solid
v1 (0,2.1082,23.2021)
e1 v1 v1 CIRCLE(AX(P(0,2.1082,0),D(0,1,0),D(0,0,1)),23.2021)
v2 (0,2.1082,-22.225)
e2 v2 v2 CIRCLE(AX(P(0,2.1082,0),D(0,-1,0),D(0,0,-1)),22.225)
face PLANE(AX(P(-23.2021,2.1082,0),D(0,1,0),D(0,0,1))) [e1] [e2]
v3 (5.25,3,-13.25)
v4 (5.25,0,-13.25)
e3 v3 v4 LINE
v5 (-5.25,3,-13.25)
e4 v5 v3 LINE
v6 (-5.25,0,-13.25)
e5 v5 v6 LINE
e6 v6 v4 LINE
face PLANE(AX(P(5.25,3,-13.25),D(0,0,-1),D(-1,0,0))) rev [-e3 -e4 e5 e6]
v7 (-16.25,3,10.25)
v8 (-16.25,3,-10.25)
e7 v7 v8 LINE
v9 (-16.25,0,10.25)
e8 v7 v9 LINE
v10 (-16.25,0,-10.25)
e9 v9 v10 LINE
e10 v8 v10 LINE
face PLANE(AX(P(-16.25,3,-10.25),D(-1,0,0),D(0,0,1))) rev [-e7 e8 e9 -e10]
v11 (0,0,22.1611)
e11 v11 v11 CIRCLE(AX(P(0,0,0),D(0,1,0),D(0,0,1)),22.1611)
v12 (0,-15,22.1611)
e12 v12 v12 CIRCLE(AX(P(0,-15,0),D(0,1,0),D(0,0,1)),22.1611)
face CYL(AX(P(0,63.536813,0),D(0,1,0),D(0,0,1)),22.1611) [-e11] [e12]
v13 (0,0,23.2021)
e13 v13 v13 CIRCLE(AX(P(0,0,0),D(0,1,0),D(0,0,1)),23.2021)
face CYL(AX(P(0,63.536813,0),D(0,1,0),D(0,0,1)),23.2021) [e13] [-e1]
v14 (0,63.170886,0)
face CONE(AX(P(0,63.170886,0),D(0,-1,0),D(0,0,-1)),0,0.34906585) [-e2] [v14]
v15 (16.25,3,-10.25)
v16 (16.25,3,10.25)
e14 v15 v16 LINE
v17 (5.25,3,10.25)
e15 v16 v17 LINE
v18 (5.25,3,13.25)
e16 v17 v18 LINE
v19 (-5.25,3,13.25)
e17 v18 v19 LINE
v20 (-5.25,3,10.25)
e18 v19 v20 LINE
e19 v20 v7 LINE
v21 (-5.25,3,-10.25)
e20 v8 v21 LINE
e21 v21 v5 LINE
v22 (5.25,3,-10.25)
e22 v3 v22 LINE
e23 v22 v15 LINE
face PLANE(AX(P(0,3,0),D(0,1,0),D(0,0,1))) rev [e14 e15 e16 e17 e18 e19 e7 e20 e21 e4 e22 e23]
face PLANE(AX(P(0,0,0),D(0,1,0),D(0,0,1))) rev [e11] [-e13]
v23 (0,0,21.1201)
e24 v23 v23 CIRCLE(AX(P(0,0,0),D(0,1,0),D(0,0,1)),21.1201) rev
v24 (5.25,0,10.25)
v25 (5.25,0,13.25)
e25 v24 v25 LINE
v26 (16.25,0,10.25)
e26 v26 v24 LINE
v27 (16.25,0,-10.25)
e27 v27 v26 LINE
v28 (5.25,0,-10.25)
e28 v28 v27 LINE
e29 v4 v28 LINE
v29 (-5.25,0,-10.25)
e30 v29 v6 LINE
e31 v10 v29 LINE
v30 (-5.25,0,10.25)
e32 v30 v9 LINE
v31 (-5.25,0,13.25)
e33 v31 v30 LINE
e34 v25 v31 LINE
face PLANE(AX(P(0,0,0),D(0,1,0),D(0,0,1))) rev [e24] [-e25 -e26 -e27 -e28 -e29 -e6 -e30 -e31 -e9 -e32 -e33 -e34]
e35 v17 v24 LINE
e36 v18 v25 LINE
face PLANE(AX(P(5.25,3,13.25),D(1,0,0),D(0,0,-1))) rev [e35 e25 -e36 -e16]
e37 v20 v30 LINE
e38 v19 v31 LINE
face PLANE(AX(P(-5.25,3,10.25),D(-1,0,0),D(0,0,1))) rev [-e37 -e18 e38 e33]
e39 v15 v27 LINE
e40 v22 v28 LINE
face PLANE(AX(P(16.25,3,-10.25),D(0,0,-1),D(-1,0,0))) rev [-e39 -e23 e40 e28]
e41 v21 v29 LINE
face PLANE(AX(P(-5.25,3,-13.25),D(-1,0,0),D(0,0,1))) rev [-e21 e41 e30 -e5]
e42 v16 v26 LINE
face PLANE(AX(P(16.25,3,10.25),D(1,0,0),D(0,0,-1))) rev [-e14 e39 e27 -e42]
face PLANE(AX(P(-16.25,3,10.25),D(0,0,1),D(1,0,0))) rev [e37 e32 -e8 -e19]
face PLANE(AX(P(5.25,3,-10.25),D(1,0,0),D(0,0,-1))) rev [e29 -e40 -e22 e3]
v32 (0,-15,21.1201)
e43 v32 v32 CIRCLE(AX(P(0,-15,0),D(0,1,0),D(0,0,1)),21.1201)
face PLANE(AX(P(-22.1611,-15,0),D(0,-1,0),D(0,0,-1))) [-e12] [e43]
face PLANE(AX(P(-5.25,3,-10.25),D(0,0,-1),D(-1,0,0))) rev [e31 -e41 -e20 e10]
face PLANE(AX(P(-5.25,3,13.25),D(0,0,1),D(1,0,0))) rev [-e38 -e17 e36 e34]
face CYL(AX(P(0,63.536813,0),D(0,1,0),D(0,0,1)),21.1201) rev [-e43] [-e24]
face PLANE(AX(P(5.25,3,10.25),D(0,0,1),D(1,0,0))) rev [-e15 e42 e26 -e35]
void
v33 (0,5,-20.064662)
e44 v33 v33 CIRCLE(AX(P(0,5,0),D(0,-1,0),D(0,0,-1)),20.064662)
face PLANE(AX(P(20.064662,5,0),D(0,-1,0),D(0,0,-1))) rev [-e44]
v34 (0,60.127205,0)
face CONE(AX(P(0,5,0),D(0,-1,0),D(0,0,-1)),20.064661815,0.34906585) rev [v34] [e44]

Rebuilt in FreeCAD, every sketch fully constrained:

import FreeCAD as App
import Part
import Sketcher

V = App.Vector
Q = App.Units.Quantity


def add_polygon(sketch, points):
    """Adds a closed chain of lines whose ends are joined by coincident constraints."""
    first, n = sketch.GeometryCount, len(points)
    for a, b in zip(points, points[1:] + points[:1]):
        sketch.addGeometry(Part.LineSegment(App.Vector(*a, 0), App.Vector(*b, 0)), False)
    for i in range(n):
        sketch.addConstraint(Sketcher.Constraint("Coincident", first + i, 2, first + (i + 1) % n, 1))

doc = App.newDocument("Part")
body = doc.addObject("PartDesign::Body", "Body")

sketch1 = body.newObject("Sketcher::SketchObject", "Sketch")
sketch1.AttachmentSupport = (doc.getObject("XY_Plane"), [""])
sketch1.MapMode = "FlatFace"
add_polygon(sketch1, [(-22.2, 0), (0, 0), (0, 5), (-20.1, 5), (0, 60.1), (0, 63.2), (-22.2, 2.1)])
sketch1.addConstraint([
    Sketcher.Constraint("Horizontal", 0),
    Sketcher.Constraint("Vertical", 1),
    Sketcher.Constraint("Horizontal", 2),
    Sketcher.Constraint("Vertical", 4),
    Sketcher.Constraint("Vertical", 6),
    Sketcher.Constraint("Coincident", 0, 2, -1, 1),
    Sketcher.Constraint("PointOnObject", 3, 2, -2),
    Sketcher.Constraint("Parallel", 3, 5),
    Sketcher.Constraint("DistanceY", 1, 1, 1, 2, Q("5 mm")),
    Sketcher.Constraint("Angle", 3, Q("70 deg")),
    Sketcher.Constraint("DistanceX", 0, 1, 0, 2, Q("22.225 mm")),
    Sketcher.Constraint("DistanceY", 6, 2, 6, 1, Q("2.1082 mm")),
    Sketcher.Constraint("DistanceX", 2, 2, 2, 1, Q("20.064662 mm")),
])
revolution = body.newObject("PartDesign::Revolution", "Revolution")
revolution.Profile = sketch1
revolution.ReferenceAxis = (sketch1, ["V_Axis"])
revolution.Angle = 360

sketch2 = body.newObject("Sketcher::SketchObject", "Sketch001")
sketch2.AttachmentSupport = (doc.getObject("XY_Plane"), [""])
sketch2.MapMode = "FlatFace"
add_polygon(sketch2, [(-22.2, 0), (-22.2, -15), (-21.1, -15), (-21.1, 2.1), (-23.2, 2.1), (-23.2, 0)])
sketch2.addConstraint([
    Sketcher.Constraint("Vertical", 0),
    Sketcher.Constraint("Horizontal", 1),
    Sketcher.Constraint("Vertical", 2),
    Sketcher.Constraint("Horizontal", 3),
    Sketcher.Constraint("Vertical", 4),
    Sketcher.Constraint("Horizontal", 5),
    Sketcher.Constraint("PointOnObject", 4, 2, -1),
    Sketcher.Constraint("Equal", 1, 5),
    Sketcher.Constraint("DistanceY", 0, 2, 0, 1, Q("15 mm")),
    Sketcher.Constraint("DistanceX", 1, 1, 1, 2, Q("1.041 mm")),
    Sketcher.Constraint("DistanceY", 2, 1, 2, 2, Q("17.1082 mm")),
    Sketcher.Constraint("DistanceX", 0, 2, -1, 1, Q("22.1611 mm")),
])
revolution2 = body.newObject("PartDesign::Revolution", "Revolution001")
revolution2.Profile = sketch2
revolution2.ReferenceAxis = (sketch2, ["V_Axis"])
revolution2.Angle = 360

sketch3 = body.newObject("Sketcher::SketchObject", "Sketch002")
sketch3.AttachmentSupport = (doc.getObject("XZ_Plane"), [""])
sketch3.MapMode = "FlatFace"
add_polygon(sketch3, [(5.2, 13.2), (-5.2, 13.2), (-5.2, 10.2), (-16.2, 10.2), (-16.2, -10.2), (-5.2, -10.2), (-5.2, -13.2), (5.2, -13.2), (5.2, -10.2), (16.2, -10.2), (16.2, 10.2), (5.2, 10.2)])
sketch3.addConstraint([
    Sketcher.Constraint("Horizontal", 0),
    Sketcher.Constraint("Vertical", 1),
    Sketcher.Constraint("Horizontal", 2),
    Sketcher.Constraint("Vertical", 3),
    Sketcher.Constraint("Horizontal", 4),
    Sketcher.Constraint("Vertical", 5),
    Sketcher.Constraint("Horizontal", 6),
    Sketcher.Constraint("Vertical", 7),
    Sketcher.Constraint("Horizontal", 8),
    Sketcher.Constraint("Vertical", 9),
    Sketcher.Constraint("Horizontal", 10),
    Sketcher.Constraint("Vertical", 11),
    Sketcher.Constraint("Symmetric", 0, 2, 6, 2, -1, 1),
    Sketcher.Constraint("Symmetric", 2, 2, 8, 2, -1, 1),
    Sketcher.Constraint("Symmetric", 4, 2, 10, 2, -1, 1),
    Sketcher.Constraint("Symmetric", 4, 2, 7, 2, -2),
    Sketcher.Constraint("DistanceX", 2, 2, 2, 1, Q("11 mm")),
    Sketcher.Constraint("DistanceY", 1, 2, 1, 1, Q("3 mm")),
    Sketcher.Constraint("DistanceX", 0, 2, 0, 1, Q("10.5 mm")),
    Sketcher.Constraint("DistanceY", 3, 2, 3, 1, Q("20.5 mm")),
])
pocket1 = body.newObject("PartDesign::Pocket", "Pocket")
pocket1.Profile = sketch3
pocket1.Length = 3

doc.recompute()
